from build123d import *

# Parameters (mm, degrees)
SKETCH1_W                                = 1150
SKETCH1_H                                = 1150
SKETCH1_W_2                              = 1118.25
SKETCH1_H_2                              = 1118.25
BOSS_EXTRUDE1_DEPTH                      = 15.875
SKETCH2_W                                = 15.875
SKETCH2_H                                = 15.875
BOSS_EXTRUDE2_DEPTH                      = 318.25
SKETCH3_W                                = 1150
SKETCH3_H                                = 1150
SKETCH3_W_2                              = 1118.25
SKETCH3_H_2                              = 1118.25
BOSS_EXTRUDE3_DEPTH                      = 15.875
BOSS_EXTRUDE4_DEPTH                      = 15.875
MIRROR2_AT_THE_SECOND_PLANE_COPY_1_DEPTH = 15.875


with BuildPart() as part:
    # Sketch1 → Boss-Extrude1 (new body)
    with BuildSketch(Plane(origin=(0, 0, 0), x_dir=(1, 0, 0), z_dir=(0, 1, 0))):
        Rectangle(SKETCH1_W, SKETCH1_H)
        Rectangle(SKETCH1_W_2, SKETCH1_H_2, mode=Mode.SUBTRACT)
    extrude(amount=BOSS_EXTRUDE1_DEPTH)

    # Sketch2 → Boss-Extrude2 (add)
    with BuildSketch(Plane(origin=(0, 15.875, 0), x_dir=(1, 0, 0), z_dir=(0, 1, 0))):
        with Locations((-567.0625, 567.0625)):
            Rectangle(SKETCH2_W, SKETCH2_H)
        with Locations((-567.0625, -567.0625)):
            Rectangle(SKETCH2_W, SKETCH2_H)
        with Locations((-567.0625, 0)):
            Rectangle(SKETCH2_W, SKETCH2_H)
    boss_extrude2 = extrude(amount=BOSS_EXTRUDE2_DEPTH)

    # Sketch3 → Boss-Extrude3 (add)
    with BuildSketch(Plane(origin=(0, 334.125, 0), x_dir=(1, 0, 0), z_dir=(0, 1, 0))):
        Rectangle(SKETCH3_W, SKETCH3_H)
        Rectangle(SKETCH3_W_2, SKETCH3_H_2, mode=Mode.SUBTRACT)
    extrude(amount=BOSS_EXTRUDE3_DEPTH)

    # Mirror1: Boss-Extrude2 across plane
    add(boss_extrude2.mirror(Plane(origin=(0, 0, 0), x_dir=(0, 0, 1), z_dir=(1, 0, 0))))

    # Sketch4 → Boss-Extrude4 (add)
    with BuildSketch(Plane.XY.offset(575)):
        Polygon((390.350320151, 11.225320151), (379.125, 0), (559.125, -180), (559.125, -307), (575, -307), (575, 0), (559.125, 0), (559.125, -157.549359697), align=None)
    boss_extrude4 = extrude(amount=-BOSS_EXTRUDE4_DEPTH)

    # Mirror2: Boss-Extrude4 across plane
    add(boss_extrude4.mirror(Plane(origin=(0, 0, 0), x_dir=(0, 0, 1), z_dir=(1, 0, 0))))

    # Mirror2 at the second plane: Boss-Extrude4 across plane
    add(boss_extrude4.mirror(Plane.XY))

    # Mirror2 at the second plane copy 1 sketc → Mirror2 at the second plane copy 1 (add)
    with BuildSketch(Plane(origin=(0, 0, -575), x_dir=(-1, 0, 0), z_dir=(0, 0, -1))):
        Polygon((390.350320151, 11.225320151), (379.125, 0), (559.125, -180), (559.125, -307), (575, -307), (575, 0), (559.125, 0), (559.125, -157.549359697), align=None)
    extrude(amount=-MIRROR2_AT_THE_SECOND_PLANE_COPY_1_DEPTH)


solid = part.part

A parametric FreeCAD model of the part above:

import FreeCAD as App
import Part
import Sketcher

V = App.Vector
Q = App.Units.Quantity


def add_polygon(sketch, points):
    """Adds a closed chain of lines whose ends are joined by coincident constraints."""
    first, n = sketch.GeometryCount, len(points)
    for a, b in zip(points, points[1:] + points[:1]):
        sketch.addGeometry(Part.LineSegment(App.Vector(*a, 0), App.Vector(*b, 0)), False)
    for i in range(n):
        sketch.addConstraint(Sketcher.Constraint("Coincident", first + i, 2, first + (i + 1) % n, 1))

doc = App.newDocument("Part")
body = doc.addObject("PartDesign::Body", "Body")

# Sketch on XZ plane
sketch1 = body.newObject("Sketcher::SketchObject", "Sketch")
sketch1.AttachmentSupport = (doc.getObject("XZ_Plane"), [""])
sketch1.MapMode = "FlatFace"
add_polygon(sketch1, [(-575, -575), (-575, 575), (575, 575), (575, -575)])  # lines 0-3
add_polygon(sketch1, [(559.125, 559.125), (-559.125, 559.125), (-559.125, -559.125), (559.125, -559.125)])  # lines 4-7
sketch1.addConstraint([
    Sketcher.Constraint("Vertical", 0),
    Sketcher.Constraint("Horizontal", 1),
    Sketcher.Constraint("Vertical", 2),
    Sketcher.Constraint("Horizontal", 3),
    Sketcher.Constraint("Horizontal", 4),
    Sketcher.Constraint("Vertical", 5),
    Sketcher.Constraint("Horizontal", 6),
    Sketcher.Constraint("Vertical", 7),
    Sketcher.Constraint("Symmetric", 0, 2, 2, 2, -1, 1),
    Sketcher.Constraint("Symmetric", 4, 2, 6, 2, -1, 1),
    Sketcher.Constraint("Equal", 3, 0),
    Sketcher.Constraint("Equal", 6, 5),
    Sketcher.Constraint("DistanceX", 1, 1, 1, 2, Q("1150 mm")),
    Sketcher.Constraint("DistanceX", 4, 2, 4, 1, Q("1118.25 mm")),
])
pad1 = body.newObject("PartDesign::Pad", "Pad")
pad1.Profile = sketch1
pad1.Length = 15.875
pad1.Reversed = True

# Sketch on XZ plane
sketch2 = body.newObject("Sketcher::SketchObject", "Sketch001")
sketch2.AttachmentSupport = (doc.getObject("XZ_Plane"), [""])
sketch2.MapMode = "FlatFace"
sketch2.AttachmentOffset = App.Placement(V(0, 0, -15.875), App.Rotation())
add_polygon(sketch2, [(-575, -575), (-575, -559.125), (-559.125, -559.125), (-559.125, -575)])  # lines 0-3
add_polygon(sketch2, [(-575, 559.125), (-575, 575), (-559.125, 575), (-559.125, 559.125)])  # lines 4-7
add_polygon(sketch2, [(-575, -7.9375), (-575, 7.9375), (-559.125, 7.9375), (-559.125, -7.9375)])  # lines 8-11
sketch2.addConstraint([
    Sketcher.Constraint("Vertical", 0),
    Sketcher.Constraint("Horizontal", 1),
    Sketcher.Constraint("Vertical", 2),
    Sketcher.Constraint("Horizontal", 3),
    Sketcher.Constraint("Vertical", 4),
    Sketcher.Constraint("Horizontal", 5),
    Sketcher.Constraint("Vertical", 6),
    Sketcher.Constraint("Horizontal", 7),
    Sketcher.Constraint("Vertical", 8),
    Sketcher.Constraint("Horizontal", 9),
    Sketcher.Constraint("Vertical", 10),
    Sketcher.Constraint("Horizontal", 11),
    Sketcher.Constraint("Symmetric", 3, 2, 4, 2, -1),
    Sketcher.Constraint("Symmetric", 1, 2, 6, 2, -1),
    Sketcher.Constraint("Vertical", 7, 2, 8, 2),
    Sketcher.Constraint("Vertical", 6, 2, 9, 2),
    Sketcher.Constraint("Equal", 11, 0),
    Sketcher.Constraint("Equal", 6, 8),
    Sketcher.Constraint("DistanceX", 0, 2, -1, 1, Q("575 mm")),
    Sketcher.Constraint("DistanceY", 2, 2, -1, 1, Q("575 mm")),
    Sketcher.Constraint("DistanceX", 1, 1, 1, 2, Q("15.875 mm")),
    Sketcher.Constraint("DistanceY", -1, 1, 8, 2, Q("7.9375 mm")),
])
pad2 = body.newObject("PartDesign::Pad", "Pad001")
pad2.Profile = sketch2
pad2.Length = 318.25
pad2.Reversed = True

# Sketch on XZ plane
sketch3 = body.newObject("Sketcher::SketchObject", "Sketch002")
sketch3.AttachmentSupport = (doc.getObject("XZ_Plane"), [""])
sketch3.MapMode = "FlatFace"
sketch3.AttachmentOffset = App.Placement(V(0, 0, -334.125), App.Rotation())
add_polygon(sketch3, [(-575, -575), (-575, 575), (575, 575), (575, -575)])  # lines 0-3
add_polygon(sketch3, [(559.125, 559.125), (-559.125, 559.125), (-559.125, -559.125), (559.125, -559.125)])  # lines 4-7
sketch3.addConstraint([
    Sketcher.Constraint("Vertical", 0),
    Sketcher.Constraint("Horizontal", 1),
    Sketcher.Constraint("Vertical", 2),
    Sketcher.Constraint("Horizontal", 3),
    Sketcher.Constraint("Horizontal", 4),
    Sketcher.Constraint("Vertical", 5),
    Sketcher.Constraint("Horizontal", 6),
    Sketcher.Constraint("Vertical", 7),
    Sketcher.Constraint("Symmetric", 0, 2, 2, 2, -1, 1),
    Sketcher.Constraint("Symmetric", 4, 2, 6, 2, -1, 1),
    Sketcher.Constraint("Equal", 3, 0),
    Sketcher.Constraint("Equal", 6, 5),
    Sketcher.Constraint("DistanceX", 1, 1, 1, 2, Q("1150 mm")),
    Sketcher.Constraint("DistanceX", 4, 2, 4, 1, Q("1118.25 mm")),
])
pad3 = body.newObject("PartDesign::Pad", "Pad002")
pad3.Profile = sketch3
pad3.Length = 15.875
pad3.Reversed = True
doc.recompute()

mirrored = body.newObject("PartDesign::Mirrored", "Mirrored")
mirrored.Originals = [pad2]
mirrored.MirrorPlane = (doc.getObject("YZ_Plane"), [""])
body.Tip = mirrored

# Sketch on XY plane
sketch4 = body.newObject("Sketcher::SketchObject", "Sketch003")
sketch4.AttachmentSupport = (doc.getObject("XY_Plane"), [""])
sketch4.MapMode = "FlatFace"
sketch4.AttachmentOffset = App.Placement(V(0, 0, 575), App.Rotation())
add_polygon(sketch4, [(390.35032, 11.22532), (379.125, 0), (559.125, -180), (559.125, -307), (575, -307), (575, 0), (559.125, 0), (559.125, -157.54936)])  # lines 0-7
sketch4.addConstraint([
    Sketcher.Constraint("Vertical", 2),
    Sketcher.Constraint("Horizontal", 3),
    Sketcher.Constraint("Vertical", 4),
    Sketcher.Constraint("Horizontal", 5),
    Sketcher.Constraint("Vertical", 6),
    Sketcher.Constraint("PointOnObject", 0, 2, -1),
    Sketcher.Constraint("PointOnObject", 4, 2, -1),
    Sketcher.Constraint("Perpendicular", 0, 1),
    Sketcher.Constraint("Parallel", 1, 7),
    Sketcher.Constraint("Vertical", 2, 2, 5, 2),
    Sketcher.Constraint("DistanceY", 2, 2, 2, 1, Q("127 mm")),
    Sketcher.Constraint("DistanceY", 4, 1, 4, 2, Q("307 mm")),
    Sketcher.Constraint("Angle", 0, Q("-135 deg")),
    Sketcher.Constraint("DistanceX", -1, 1, 3, 2, Q("575 mm")),
    Sketcher.Constraint("DistanceX", 3, 1, 3, 2, Q("15.875 mm")),
    Sketcher.Constraint("Distance", 0, Q("15.875 mm")),
])
pad4 = body.newObject("PartDesign::Pad", "Pad003")
pad4.Profile = sketch4
pad4.Length = 15.875
pad4.Reversed = True
doc.recompute()

mirrored2 = body.newObject("PartDesign::Mirrored", "Mirrored001")
mirrored2.Originals = [pad4]
mirrored2.MirrorPlane = (doc.getObject("YZ_Plane"), [""])
body.Tip = mirrored2
doc.recompute()

mirrored3 = body.newObject("PartDesign::Mirrored", "Mirrored002")
mirrored3.Originals = [pad4]
mirrored3.MirrorPlane = (doc.getObject("XY_Plane"), [""])
body.Tip = mirrored3

# Sketch on XY plane
sketch5 = body.newObject("Sketcher::SketchObject", "Sketch004")
sketch5.AttachmentSupport = (doc.getObject("XY_Plane"), [""])
sketch5.MapMode = "FlatFace"
sketch5.AttachmentOffset = App.Placement(V(0, 0, -575), App.Rotation())
add_polygon(sketch5, [(-390.35032, 11.22532), (-379.125, 0), (-559.125, -180), (-559.125, -307), (-575, -307), (-575, 0), (-559.125, 0), (-559.125, -157.54936)])  # lines 0-7
sketch5.addConstraint([
    Sketcher.Constraint("Vertical", 2),
    Sketcher.Constraint("Horizontal", 3),
    Sketcher.Constraint("Vertical", 4),
    Sketcher.Constraint("Horizontal", 5),
    Sketcher.Constraint("Vertical", 6),
    Sketcher.Constraint("PointOnObject", 0, 2, -1),
    Sketcher.Constraint("PointOnObject", 4, 2, -1),
    Sketcher.Constraint("Perpendicular", 0, 1),
    Sketcher.Constraint("Parallel", 1, 7),
    Sketcher.Constraint("Vertical", 2, 2, 5, 2),
    Sketcher.Constraint("DistanceY", 2, 2, 2, 1, Q("127 mm")),
    Sketcher.Constraint("DistanceY", 4, 1, 4, 2, Q("307 mm")),
    Sketcher.Constraint("Angle", 0, Q("-45 deg")),
    Sketcher.Constraint("DistanceX", 3, 2, -1, 1, Q("575 mm")),
    Sketcher.Constraint("DistanceX", 3, 2, 3, 1, Q("15.875 mm")),
    Sketcher.Constraint("Distance", 0, Q("15.875 mm")),
])
pad5 = body.newObject("PartDesign::Pad", "Pad004")
pad5.Profile = sketch5
pad5.Length = 15.875

doc.recompute()
